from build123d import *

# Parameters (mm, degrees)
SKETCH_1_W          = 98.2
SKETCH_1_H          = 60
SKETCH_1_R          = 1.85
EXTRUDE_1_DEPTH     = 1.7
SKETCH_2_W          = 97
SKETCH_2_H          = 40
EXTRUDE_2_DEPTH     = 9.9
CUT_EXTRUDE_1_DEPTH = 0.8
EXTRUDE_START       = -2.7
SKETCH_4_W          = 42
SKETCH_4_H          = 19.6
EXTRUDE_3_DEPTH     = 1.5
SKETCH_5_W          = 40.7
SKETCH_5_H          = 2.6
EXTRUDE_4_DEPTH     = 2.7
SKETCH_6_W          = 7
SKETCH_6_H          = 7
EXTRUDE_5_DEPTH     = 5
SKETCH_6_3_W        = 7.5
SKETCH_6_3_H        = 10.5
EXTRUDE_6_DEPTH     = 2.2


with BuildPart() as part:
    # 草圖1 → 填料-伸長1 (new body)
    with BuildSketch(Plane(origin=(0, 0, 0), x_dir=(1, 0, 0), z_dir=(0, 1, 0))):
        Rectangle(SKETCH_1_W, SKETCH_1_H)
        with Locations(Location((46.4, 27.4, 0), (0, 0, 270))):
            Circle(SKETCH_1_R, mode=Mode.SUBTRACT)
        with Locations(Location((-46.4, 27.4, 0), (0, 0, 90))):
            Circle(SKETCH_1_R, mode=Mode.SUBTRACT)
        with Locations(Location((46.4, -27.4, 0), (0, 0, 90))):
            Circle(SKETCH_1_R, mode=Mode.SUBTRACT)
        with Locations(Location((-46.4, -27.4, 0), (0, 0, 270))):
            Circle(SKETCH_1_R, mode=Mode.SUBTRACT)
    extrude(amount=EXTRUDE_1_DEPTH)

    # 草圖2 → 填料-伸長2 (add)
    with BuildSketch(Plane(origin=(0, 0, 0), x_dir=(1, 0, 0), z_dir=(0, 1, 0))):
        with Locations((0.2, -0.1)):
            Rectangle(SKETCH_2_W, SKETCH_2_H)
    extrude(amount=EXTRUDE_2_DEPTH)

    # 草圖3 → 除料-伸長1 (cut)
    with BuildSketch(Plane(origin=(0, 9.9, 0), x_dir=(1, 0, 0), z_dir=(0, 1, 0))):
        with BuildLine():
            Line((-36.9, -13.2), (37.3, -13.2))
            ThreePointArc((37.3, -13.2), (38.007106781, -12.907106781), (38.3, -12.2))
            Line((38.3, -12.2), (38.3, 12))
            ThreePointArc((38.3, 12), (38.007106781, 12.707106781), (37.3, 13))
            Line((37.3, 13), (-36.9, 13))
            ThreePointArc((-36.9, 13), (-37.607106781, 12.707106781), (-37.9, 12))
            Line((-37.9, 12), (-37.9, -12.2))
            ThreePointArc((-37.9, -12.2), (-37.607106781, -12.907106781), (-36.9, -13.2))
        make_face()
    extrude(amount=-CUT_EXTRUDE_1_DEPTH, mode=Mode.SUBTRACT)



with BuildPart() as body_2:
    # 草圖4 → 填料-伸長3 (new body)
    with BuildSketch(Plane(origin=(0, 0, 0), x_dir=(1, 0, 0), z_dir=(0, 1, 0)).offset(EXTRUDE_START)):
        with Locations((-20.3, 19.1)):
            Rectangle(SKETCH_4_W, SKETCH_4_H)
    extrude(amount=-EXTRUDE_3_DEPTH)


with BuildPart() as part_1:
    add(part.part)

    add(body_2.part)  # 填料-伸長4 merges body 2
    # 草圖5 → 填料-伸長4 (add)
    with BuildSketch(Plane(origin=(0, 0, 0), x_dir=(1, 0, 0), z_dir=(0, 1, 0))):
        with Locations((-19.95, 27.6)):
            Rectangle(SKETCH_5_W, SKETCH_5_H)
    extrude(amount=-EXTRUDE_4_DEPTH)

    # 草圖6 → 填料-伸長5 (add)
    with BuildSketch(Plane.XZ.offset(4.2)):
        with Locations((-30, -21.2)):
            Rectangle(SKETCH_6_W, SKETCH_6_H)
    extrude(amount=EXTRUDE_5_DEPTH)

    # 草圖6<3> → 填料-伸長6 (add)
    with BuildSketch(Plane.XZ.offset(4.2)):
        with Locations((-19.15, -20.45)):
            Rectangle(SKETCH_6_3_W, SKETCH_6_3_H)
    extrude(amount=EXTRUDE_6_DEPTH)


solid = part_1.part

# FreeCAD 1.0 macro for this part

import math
import FreeCAD as App
import Part
import Sketcher
Q = App.Units.Quantity


def add_polygon(sketch, points):
    """Adds a closed chain of lines whose ends are joined by coincident constraints."""
    first, n = sketch.GeometryCount, len(points)
    for a, b in zip(points, points[1:] + points[:1]):
        sketch.addGeometry(Part.LineSegment(App.Vector(*a, 0), App.Vector(*b, 0)), False)
    for i in range(n):
        sketch.addConstraint(Sketcher.Constraint("Coincident", first + i, 2, first + (i + 1) % n, 1))

doc = App.newDocument("Part")
body = doc.addObject("PartDesign::Body", "Body")

sketch1 = doc.addObject("Sketcher::SketchObject", "Sketch")
body.addObject(sketch1)
sketch1.AttachmentSupport = (doc.XZ_Plane, [""])
sketch1.MapMode = "FlatFace"
add_polygon(sketch1, [(-49.1, -30), (-49.1, 30), (49.1, 30), (49.1, -30)])
sketch1.addGeometry(Part.Circle(App.Vector(-46.4, 27.4, 0), App.Vector(0, 0, 1), 1.85), False)
sketch1.addGeometry(Part.Circle(App.Vector(46.4, 27.4, 0), App.Vector(0, 0, 1), 1.85), False)
sketch1.addGeometry(Part.Circle(App.Vector(-46.4, -27.4, 0), App.Vector(0, 0, 1), 1.85), False)
sketch1.addGeometry(Part.Circle(App.Vector(46.4, -27.4, 0), App.Vector(0, 0, 1), 1.85), False)
sketch1.addConstraint([
    Sketcher.Constraint("Vertical", 0),
    Sketcher.Constraint("Horizontal", 1),
    Sketcher.Constraint("Vertical", 2),
    Sketcher.Constraint("Horizontal", 3),
    Sketcher.Constraint("Equal", 4, 5),
    Sketcher.Constraint("Equal", 5, 6),
    Sketcher.Constraint("Equal", 6, 7),
    Sketcher.Constraint("Symmetric", 5, 3, 6, 3, -1, 1),
    Sketcher.Constraint("Symmetric", 4, 3, 7, 3, -1, 1),
    Sketcher.Constraint("Symmetric", 0, 2, 2, 2, -1, 1),
    Sketcher.Constraint("Symmetric", 4, 3, 5, 3, -2),
    Sketcher.Constraint("Diameter", 4, Q("3.7 mm")),
    Sketcher.Constraint("DistanceY", 0, 1, 0, 2, Q("60 mm")),
    Sketcher.Constraint("DistanceX", 1, 1, 1, 2, Q("98.2 mm")),
    Sketcher.Constraint("DistanceX", 4, 3, -1, 1, Q("46.4 mm")),
    Sketcher.Constraint("DistanceY", -1, 1, 4, 3, Q("27.4 mm")),
])
pad1 = doc.addObject("PartDesign::Pad", "Pad")
body.addObject(pad1)
pad1.Profile = sketch1
pad1.Length = 1.7
pad1.Reversed = True

sketch2 = doc.addObject("Sketcher::SketchObject", "Sketch001")
body.addObject(sketch2)
sketch2.AttachmentSupport = (doc.XZ_Plane, [""])
sketch2.MapMode = "FlatFace"
add_polygon(sketch2, [(-48.3, -19.9), (-48.3, 20.1), (48.7, 20.1), (48.7, -19.9)])
sketch2.addConstraint([
    Sketcher.Constraint("Vertical", 0),
    Sketcher.Constraint("Horizontal", 1),
    Sketcher.Constraint("Vertical", 2),
    Sketcher.Constraint("Horizontal", 3),
    Sketcher.Constraint("DistanceX", 1, 1, 1, 2, Q("97 mm")),
    Sketcher.Constraint("DistanceY", 0, 1, 0, 2, Q("40 mm")),
    Sketcher.Constraint("DistanceX", 0, 2, -1, 1, Q("48.3 mm")),
    Sketcher.Constraint("DistanceY", -1, 1, 0, 2, Q("20.1 mm")),
])
pad2 = doc.addObject("PartDesign::Pad", "Pad001")
body.addObject(pad2)
pad2.Profile = sketch2
pad2.Length = 9.9
pad2.Reversed = True

sketch3 = doc.addObject("Sketcher::SketchObject", "Sketch002")
body.addObject(sketch3)
sketch3.AttachmentSupport = (doc.XZ_Plane, [""])
sketch3.MapMode = "FlatFace"
sketch3.AttachmentOffset = App.Placement(App.Vector(0, 0, -9.9), App.Rotation())
sketch3.addGeometry([
    Part.LineSegment(App.Vector(-36.9, 13.2, 0), App.Vector(37.3, 13.2, 0)),
    Part.ArcOfCircle(Part.Circle(App.Vector(37.3, 12.2, 0), App.Vector(0, 0, 1), 1), math.radians(0), math.radians(90)),
    Part.LineSegment(App.Vector(38.3, 12.2, 0), App.Vector(38.3, -12, 0)),
    Part.ArcOfCircle(Part.Circle(App.Vector(37.3, -12, 0), App.Vector(0, 0, 1), 1), math.radians(-90), math.radians(0)),
    Part.LineSegment(App.Vector(37.3, -13, 0), App.Vector(-36.9, -13, 0)),
    Part.ArcOfCircle(Part.Circle(App.Vector(-36.9, -12, 0), App.Vector(0, 0, 1), 1), math.radians(-180), math.radians(-90)),
    Part.LineSegment(App.Vector(-37.9, -12, 0), App.Vector(-37.9, 12.2, 0)),
    Part.ArcOfCircle(Part.Circle(App.Vector(-36.9, 12.2, 0), App.Vector(0, 0, 1), 1), math.radians(90), math.radians(180)),
], False)
sketch3.addConstraint([
    Sketcher.Constraint("Tangent", 0, 2, 1, 2),
    Sketcher.Constraint("Tangent", 1, 1, 2, 1),
    Sketcher.Constraint("Tangent", 2, 2, 3, 2),
    Sketcher.Constraint("Tangent", 3, 1, 4, 1),
    Sketcher.Constraint("Tangent", 4, 2, 5, 2),
    Sketcher.Constraint("Tangent", 5, 1, 6, 1),
    Sketcher.Constraint("Tangent", 6, 2, 7, 2),
    Sketcher.Constraint("Tangent", 7, 1, 0, 1),
    Sketcher.Constraint("Horizontal", 0),
    Sketcher.Constraint("Vertical", 2),
    Sketcher.Constraint("Horizontal", 4),
    Sketcher.Constraint("Vertical", 6),
    Sketcher.Constraint("Equal", 1, 3),
    Sketcher.Constraint("Equal", 3, 5),
    Sketcher.Constraint("Equal", 5, 7),
    Sketcher.Constraint("Radius", 1, Q("1 mm")),
    Sketcher.Constraint("DistanceX", 0, 1, 0, 2, Q("74.2 mm")),
    Sketcher.Constraint("DistanceY", 2, 2, 2, 1, Q("24.2 mm")),
    Sketcher.Constraint("DistanceY", 3, 3, -1, 1, Q("12 mm")),
    Sketcher.Constraint("DistanceX", -1, 1, 1, 3, Q("37.3 mm")),
])
pocket1 = doc.addObject("PartDesign::Pocket", "Pocket")
body.addObject(pocket1)
pocket1.Profile = sketch3
pocket1.Length = 0.8
pocket1.Reversed = True
body2 = doc.addObject("PartDesign::Body", "Body001")

sketch4 = doc.addObject("Sketcher::SketchObject", "Sketch003")
body2.addObject(sketch4)
sketch4.AttachmentSupport = (doc.getObject("XZ_Plane001"), [""])
sketch4.MapMode = "FlatFace"
sketch4.AttachmentOffset = App.Placement(App.Vector(0, 0, 2.7), App.Rotation())
add_polygon(sketch4, [(-41.3, -28.9), (-41.3, -9.3), (0.7, -9.3), (0.7, -28.9)])
sketch4.addConstraint([
    Sketcher.Constraint("Vertical", 0),
    Sketcher.Constraint("Horizontal", 1),
    Sketcher.Constraint("Vertical", 2),
    Sketcher.Constraint("Horizontal", 3),
    Sketcher.Constraint("DistanceX", 1, 1, 1, 2, Q("42 mm")),
    Sketcher.Constraint("DistanceY", 0, 1, 0, 2, Q("19.6 mm")),
    Sketcher.Constraint("DistanceX", 0, 2, -1, 1, Q("41.3 mm")),
    Sketcher.Constraint("DistanceY", 0, 2, -1, 1, Q("9.3 mm")),
])
pad3 = doc.addObject("PartDesign::Pad", "Pad002")
body2.addObject(pad3)
pad3.Profile = sketch4
pad3.Length = 1.5
body.AllowCompound = True
doc.recompute()

boolean = doc.addObject("PartDesign::Boolean", "Boolean")
body.addObject(boolean)
boolean.Type = "Fuse"
boolean.addObjects([body2])

sketch5 = doc.addObject("Sketcher::SketchObject", "Sketch004")
body.addObject(sketch5)
sketch5.AttachmentSupport = (doc.XZ_Plane, [""])
sketch5.MapMode = "FlatFace"
add_polygon(sketch5, [(-40.3, -28.9), (-40.3, -26.3), (0.4, -26.3), (0.4, -28.9)])
sketch5.addConstraint([
    Sketcher.Constraint("Vertical", 0),
    Sketcher.Constraint("Horizontal", 1),
    Sketcher.Constraint("Vertical", 2),
    Sketcher.Constraint("Horizontal", 3),
    Sketcher.Constraint("DistanceX", 1, 1, 1, 2, Q("40.7 mm")),
    Sketcher.Constraint("DistanceY", 0, 1, 0, 2, Q("2.6 mm")),
    Sketcher.Constraint("DistanceX", 0, 2, -1, 1, Q("40.3 mm")),
    Sketcher.Constraint("DistanceY", 0, 2, -1, 1, Q("26.3 mm")),
])
pad4 = doc.addObject("PartDesign::Pad", "Pad003")
body.addObject(pad4)
pad4.Profile = sketch5
pad4.Length = 2.7

sketch6 = doc.addObject("Sketcher::SketchObject", "Sketch005")
body.addObject(sketch6)
sketch6.AttachmentSupport = (doc.XZ_Plane, [""])
sketch6.MapMode = "FlatFace"
sketch6.AttachmentOffset = App.Placement(App.Vector(0, 0, 4.2), App.Rotation())
add_polygon(sketch6, [(-33.5, -17.7), (-33.5, -24.7), (-26.5, -24.7), (-26.5, -17.7)])
sketch6.addConstraint([
    Sketcher.Constraint("Vertical", 0),
    Sketcher.Constraint("Horizontal", 1),
    Sketcher.Constraint("Vertical", 2),
    Sketcher.Constraint("Horizontal", 3),
    Sketcher.Constraint("Equal", 3, 0),
    Sketcher.Constraint("DistanceX", 1, 1, 1, 2, Q("7 mm")),
    Sketcher.Constraint("DistanceX", 0, 2, -1, 1, Q("33.5 mm")),
    Sketcher.Constraint("DistanceY", 0, 2, -1, 1, Q("24.7 mm")),
])
pad5 = doc.addObject("PartDesign::Pad", "Pad004")
body.addObject(pad5)
pad5.Profile = sketch6
pad5.Length = 5

sketch7 = doc.addObject("Sketcher::SketchObject", "Sketch006")
body.addObject(sketch7)
sketch7.AttachmentSupport = (doc.XZ_Plane, [""])
sketch7.MapMode = "FlatFace"
sketch7.AttachmentOffset = App.Placement(App.Vector(0, 0, 4.2), App.Rotation())
add_polygon(sketch7, [(-22.9, -15.2), (-22.9, -25.7), (-15.4, -25.7), (-15.4, -15.2)])
sketch7.addConstraint([
    Sketcher.Constraint("Vertical", 0),
    Sketcher.Constraint("Horizontal", 1),
    Sketcher.Constraint("Vertical", 2),
    Sketcher.Constraint("Horizontal", 3),
    Sketcher.Constraint("DistanceX", 1, 1, 1, 2, Q("7.5 mm")),
    Sketcher.Constraint("DistanceY", 0, 2, 0, 1, Q("10.5 mm")),
    Sketcher.Constraint("DistanceX", 0, 2, -1, 1, Q("22.9 mm")),
    Sketcher.Constraint("DistanceY", 0, 2, -1, 1, Q("25.7 mm")),
])
pad6 = doc.addObject("PartDesign::Pad", "Pad005")
body.addObject(pad6)
pad6.Profile = sketch7
pad6.Length = 2.2

doc.recompute()
